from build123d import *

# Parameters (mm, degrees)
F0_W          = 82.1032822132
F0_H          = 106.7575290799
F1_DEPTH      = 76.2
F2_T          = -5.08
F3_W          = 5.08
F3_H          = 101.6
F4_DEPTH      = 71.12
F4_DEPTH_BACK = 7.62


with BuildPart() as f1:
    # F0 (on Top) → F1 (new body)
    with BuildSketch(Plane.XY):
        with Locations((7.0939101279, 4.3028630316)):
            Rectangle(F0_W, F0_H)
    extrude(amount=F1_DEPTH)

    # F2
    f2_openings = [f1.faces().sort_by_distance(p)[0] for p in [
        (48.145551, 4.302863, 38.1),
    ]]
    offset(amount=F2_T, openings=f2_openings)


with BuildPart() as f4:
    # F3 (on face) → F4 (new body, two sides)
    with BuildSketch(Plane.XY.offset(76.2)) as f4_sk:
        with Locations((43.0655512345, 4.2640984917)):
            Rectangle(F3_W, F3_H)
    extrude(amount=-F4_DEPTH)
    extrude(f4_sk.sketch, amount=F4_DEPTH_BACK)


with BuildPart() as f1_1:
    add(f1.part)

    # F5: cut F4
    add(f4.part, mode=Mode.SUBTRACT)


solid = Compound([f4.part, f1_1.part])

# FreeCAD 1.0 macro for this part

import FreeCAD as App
import Part
import Sketcher

V = App.Vector
Q = App.Units.Quantity


def faces_at(feature, points):
    """Names of the faces that lie closest to the given points."""
    faces = feature.Shape.Faces
    near = lambda p: min(range(len(faces)), key=lambda i: faces[i].distToShape(Part.Vertex(*p))[0])
    return sorted({f"Face{near(p) + 1}" for p in points})

doc = App.newDocument("Part")
params = doc.addObject("Spreadsheet::Sheet", "Params")
for row, (alias, value) in enumerate([
    ("pad1_length", "3 in"),
    ("thickness_wall", "0.2 in"),
    ("sketch2_height", "4 in"),
    ("sketch2_width", "0.2 in"),
    ("pad2_length", "2.8 in"),
    ("pad2_length2", "0.3 in"),
], start=1):
    params.set(f"A{row}", alias)
    params.set(f"B{row}", "=" + value)
    params.setAlias(f"B{row}", alias)

body = doc.addObject("PartDesign::Body", "Body")

sketch1 = body.newObject("Sketcher::SketchObject", "Sketch")
sketch1.AttachmentSupport = (doc.getObject("XY_Plane"), [""])
sketch1.MapMode = "FlatFace"
sketch1.addGeometry([
    Part.LineSegment(V(-34, 58, 0), V(-34, -49, 0)),
    Part.LineSegment(V(-34, -49, 0), V(48, -49, 0)),
    Part.LineSegment(V(48, -49, 0), V(48, 58, 0)),
    Part.LineSegment(V(48, 58, 0), V(-34, 58, 0)),
], False)
sketch1.addConstraint([
    Sketcher.Constraint("Coincident", 0, 2, 1, 1),
    Sketcher.Constraint("Coincident", 1, 2, 2, 1),
    Sketcher.Constraint("Coincident", 2, 2, 3, 1),
    Sketcher.Constraint("Coincident", 3, 2, 0, 1),
    Sketcher.Constraint("Vertical", 0),
    Sketcher.Constraint("Horizontal", 1),
    Sketcher.Constraint("Vertical", 2),
    Sketcher.Constraint("Horizontal", 3),
    Sketcher.Constraint("DistanceY", 0, 2, 0, 1, 106.757529),
    Sketcher.Constraint("DistanceY", 0, 2, -1, 1, 49.075902),
    Sketcher.Constraint("DistanceX", 1, 1, 1, 2, 82.103282),
    Sketcher.Constraint("DistanceX", 0, 2, -1, 1, 33.957731),
])
pad1 = body.newObject("PartDesign::Pad", "Pad")
pad1.Profile = sketch1
pad1.setExpression("Length", "Params.pad1_length")
doc.recompute()

thickness = body.newObject("PartDesign::Thickness", "Thickness")
thickness.Base = (pad1, faces_at(pad1, [(48.146, 4.303, 38.1)]))
thickness.setExpression("Value", "Params.thickness_wall")
thickness.Reversed = True
thickness.Join = "Arc"
body2 = doc.addObject("PartDesign::Body", "Body001")

sketch2 = body2.newObject("Sketcher::SketchObject", "Sketch001")
sketch2.AttachmentSupport = (doc.getObject("XY_Plane001"), [""])
sketch2.MapMode = "FlatFace"
sketch2.AttachmentOffset = App.Placement(V(0, 0, 3 * 25.4), App.Rotation())
sketch2.addGeometry([
    Part.LineSegment(V(41, 55, 0), V(41, -47, 0)),
    Part.LineSegment(V(41, -47, 0), V(46, -47, 0)),
    Part.LineSegment(V(46, -47, 0), V(46, 55, 0)),
    Part.LineSegment(V(46, 55, 0), V(41, 55, 0)),
], False)
sketch2.addConstraint([
    Sketcher.Constraint("Coincident", 0, 2, 1, 1),
    Sketcher.Constraint("Coincident", 1, 2, 2, 1),
    Sketcher.Constraint("Coincident", 2, 2, 3, 1),
    Sketcher.Constraint("Coincident", 3, 2, 0, 1),
    Sketcher.Constraint("Vertical", 0),
    Sketcher.Constraint("Horizontal", 1),
    Sketcher.Constraint("Vertical", 2),
    Sketcher.Constraint("Horizontal", 3),
    Sketcher.Constraint("DistanceY", 0, 2, 0, 1, Q("4 in")),
    Sketcher.Constraint("DistanceX", 1, 1, 1, 2, Q("0.2 in")),
    Sketcher.Constraint("DistanceY", 0, 2, -1, 1, 46.535902),
    Sketcher.Constraint("DistanceX", -1, 1, 0, 2, 40.525551),
])
sketch2.setExpression("Constraints[8]", "Params.sketch2_height")
sketch2.setExpression("Constraints[9]", "Params.sketch2_width")
pad2 = body2.newObject("PartDesign::Pad", "Pad001")
pad2.Profile = sketch2
pad2.Type = "TwoLengths"
pad2.setExpression("Length", "Params.pad2_length")
pad2.setExpression("Length2", "Params.pad2_length2")
pad2.Reversed = True
doc.recompute()

body3 = doc.addObject("PartDesign::Body", "Body002")
body3.BaseFeature = body2
boolean = body.newObject("PartDesign::Boolean", "Boolean")
boolean.Type = "Cut"
boolean.addObjects([body3])
doc.recompute()

doc.recompute()
